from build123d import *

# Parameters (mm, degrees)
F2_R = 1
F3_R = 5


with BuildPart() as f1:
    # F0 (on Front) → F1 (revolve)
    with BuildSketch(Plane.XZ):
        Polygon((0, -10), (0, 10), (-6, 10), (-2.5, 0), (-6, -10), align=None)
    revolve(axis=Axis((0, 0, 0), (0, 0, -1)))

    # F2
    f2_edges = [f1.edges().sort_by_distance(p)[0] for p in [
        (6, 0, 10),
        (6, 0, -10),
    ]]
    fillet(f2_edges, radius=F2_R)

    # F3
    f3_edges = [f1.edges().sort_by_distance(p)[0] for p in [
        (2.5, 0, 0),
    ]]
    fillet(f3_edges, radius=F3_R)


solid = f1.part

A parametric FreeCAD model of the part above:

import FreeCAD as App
import Part
import Sketcher

V = App.Vector


def edges_at(feature, points):
    """Names of the edges that pass closest to the given points."""
    edges = feature.Shape.Edges
    near = lambda p: min(range(len(edges)), key=lambda i: edges[i].distToShape(Part.Vertex(*p))[0])
    return sorted({f"Edge{near(p) + 1}" for p in points})


def add_polygon(sketch, points):
    """Adds a closed chain of lines whose ends are joined by coincident constraints."""
    first, n = sketch.GeometryCount, len(points)
    for a, b in zip(points, points[1:] + points[:1]):
        sketch.addGeometry(Part.LineSegment(App.Vector(*a, 0), App.Vector(*b, 0)), False)
    for i in range(n):
        sketch.addConstraint(Sketcher.Constraint("Coincident", first + i, 2, first + (i + 1) % n, 1))

doc = App.newDocument("Part")
body = doc.addObject("PartDesign::Body", "Body")

# Sketch on XZ plane
sketch1 = body.newObject("Sketcher::SketchObject", "Sketch")
sketch1.AttachmentSupport = (doc.getObject("XZ_Plane"), [""])
sketch1.MapMode = "FlatFace"
add_polygon(sketch1, [(0, -10), (0, 10), (-6, 10), (-2, 0), (-6, -10)])  # lines 0-4
sketch1.addConstraint(Sketcher.Constraint("Vertical", 0))
sketch1.addConstraint(Sketcher.Constraint("Horizontal", 1))
sketch1.addConstraint(Sketcher.Constraint("Horizontal", 4))
sketch1.addConstraint(Sketcher.Constraint("Symmetric", 0, 2, 4, 2, -1, 1))
sketch1.addConstraint(Sketcher.Constraint("PointOnObject", 2, 2, -1))
sketch1.addConstraint(Sketcher.Constraint("Vertical", 1, 2, 3, 2))
sketch1.addConstraint(Sketcher.Constraint("DistanceX", 1, 2, 1, 1, 6.0))
sketch1.addConstraint(Sketcher.Constraint("DistanceY", 0, 1, 0, 2, 20.0))
sketch1.addConstraint(Sketcher.Constraint("DistanceX", 2, 2, -1, 1, 2.5))
revolution = body.newObject("PartDesign::Revolution", "Revolution")
revolution.Profile = sketch1
revolution.ReferenceAxis = (sketch1, ["V_Axis"])
revolution.Angle = 360
doc.recompute()

fillet = body.newObject("PartDesign::Fillet", "Fillet")
fillet.Base = (revolution, edges_at(revolution, [(6, 0, 10), (6, 0, -10)]))
fillet.Radius = 1
doc.recompute()

fillet2 = body.newObject("PartDesign::Fillet", "Fillet001")
fillet2.Base = (fillet, edges_at(fillet, [(2.5, 0, 0)]))
fillet2.Radius = 5

doc.recompute()
